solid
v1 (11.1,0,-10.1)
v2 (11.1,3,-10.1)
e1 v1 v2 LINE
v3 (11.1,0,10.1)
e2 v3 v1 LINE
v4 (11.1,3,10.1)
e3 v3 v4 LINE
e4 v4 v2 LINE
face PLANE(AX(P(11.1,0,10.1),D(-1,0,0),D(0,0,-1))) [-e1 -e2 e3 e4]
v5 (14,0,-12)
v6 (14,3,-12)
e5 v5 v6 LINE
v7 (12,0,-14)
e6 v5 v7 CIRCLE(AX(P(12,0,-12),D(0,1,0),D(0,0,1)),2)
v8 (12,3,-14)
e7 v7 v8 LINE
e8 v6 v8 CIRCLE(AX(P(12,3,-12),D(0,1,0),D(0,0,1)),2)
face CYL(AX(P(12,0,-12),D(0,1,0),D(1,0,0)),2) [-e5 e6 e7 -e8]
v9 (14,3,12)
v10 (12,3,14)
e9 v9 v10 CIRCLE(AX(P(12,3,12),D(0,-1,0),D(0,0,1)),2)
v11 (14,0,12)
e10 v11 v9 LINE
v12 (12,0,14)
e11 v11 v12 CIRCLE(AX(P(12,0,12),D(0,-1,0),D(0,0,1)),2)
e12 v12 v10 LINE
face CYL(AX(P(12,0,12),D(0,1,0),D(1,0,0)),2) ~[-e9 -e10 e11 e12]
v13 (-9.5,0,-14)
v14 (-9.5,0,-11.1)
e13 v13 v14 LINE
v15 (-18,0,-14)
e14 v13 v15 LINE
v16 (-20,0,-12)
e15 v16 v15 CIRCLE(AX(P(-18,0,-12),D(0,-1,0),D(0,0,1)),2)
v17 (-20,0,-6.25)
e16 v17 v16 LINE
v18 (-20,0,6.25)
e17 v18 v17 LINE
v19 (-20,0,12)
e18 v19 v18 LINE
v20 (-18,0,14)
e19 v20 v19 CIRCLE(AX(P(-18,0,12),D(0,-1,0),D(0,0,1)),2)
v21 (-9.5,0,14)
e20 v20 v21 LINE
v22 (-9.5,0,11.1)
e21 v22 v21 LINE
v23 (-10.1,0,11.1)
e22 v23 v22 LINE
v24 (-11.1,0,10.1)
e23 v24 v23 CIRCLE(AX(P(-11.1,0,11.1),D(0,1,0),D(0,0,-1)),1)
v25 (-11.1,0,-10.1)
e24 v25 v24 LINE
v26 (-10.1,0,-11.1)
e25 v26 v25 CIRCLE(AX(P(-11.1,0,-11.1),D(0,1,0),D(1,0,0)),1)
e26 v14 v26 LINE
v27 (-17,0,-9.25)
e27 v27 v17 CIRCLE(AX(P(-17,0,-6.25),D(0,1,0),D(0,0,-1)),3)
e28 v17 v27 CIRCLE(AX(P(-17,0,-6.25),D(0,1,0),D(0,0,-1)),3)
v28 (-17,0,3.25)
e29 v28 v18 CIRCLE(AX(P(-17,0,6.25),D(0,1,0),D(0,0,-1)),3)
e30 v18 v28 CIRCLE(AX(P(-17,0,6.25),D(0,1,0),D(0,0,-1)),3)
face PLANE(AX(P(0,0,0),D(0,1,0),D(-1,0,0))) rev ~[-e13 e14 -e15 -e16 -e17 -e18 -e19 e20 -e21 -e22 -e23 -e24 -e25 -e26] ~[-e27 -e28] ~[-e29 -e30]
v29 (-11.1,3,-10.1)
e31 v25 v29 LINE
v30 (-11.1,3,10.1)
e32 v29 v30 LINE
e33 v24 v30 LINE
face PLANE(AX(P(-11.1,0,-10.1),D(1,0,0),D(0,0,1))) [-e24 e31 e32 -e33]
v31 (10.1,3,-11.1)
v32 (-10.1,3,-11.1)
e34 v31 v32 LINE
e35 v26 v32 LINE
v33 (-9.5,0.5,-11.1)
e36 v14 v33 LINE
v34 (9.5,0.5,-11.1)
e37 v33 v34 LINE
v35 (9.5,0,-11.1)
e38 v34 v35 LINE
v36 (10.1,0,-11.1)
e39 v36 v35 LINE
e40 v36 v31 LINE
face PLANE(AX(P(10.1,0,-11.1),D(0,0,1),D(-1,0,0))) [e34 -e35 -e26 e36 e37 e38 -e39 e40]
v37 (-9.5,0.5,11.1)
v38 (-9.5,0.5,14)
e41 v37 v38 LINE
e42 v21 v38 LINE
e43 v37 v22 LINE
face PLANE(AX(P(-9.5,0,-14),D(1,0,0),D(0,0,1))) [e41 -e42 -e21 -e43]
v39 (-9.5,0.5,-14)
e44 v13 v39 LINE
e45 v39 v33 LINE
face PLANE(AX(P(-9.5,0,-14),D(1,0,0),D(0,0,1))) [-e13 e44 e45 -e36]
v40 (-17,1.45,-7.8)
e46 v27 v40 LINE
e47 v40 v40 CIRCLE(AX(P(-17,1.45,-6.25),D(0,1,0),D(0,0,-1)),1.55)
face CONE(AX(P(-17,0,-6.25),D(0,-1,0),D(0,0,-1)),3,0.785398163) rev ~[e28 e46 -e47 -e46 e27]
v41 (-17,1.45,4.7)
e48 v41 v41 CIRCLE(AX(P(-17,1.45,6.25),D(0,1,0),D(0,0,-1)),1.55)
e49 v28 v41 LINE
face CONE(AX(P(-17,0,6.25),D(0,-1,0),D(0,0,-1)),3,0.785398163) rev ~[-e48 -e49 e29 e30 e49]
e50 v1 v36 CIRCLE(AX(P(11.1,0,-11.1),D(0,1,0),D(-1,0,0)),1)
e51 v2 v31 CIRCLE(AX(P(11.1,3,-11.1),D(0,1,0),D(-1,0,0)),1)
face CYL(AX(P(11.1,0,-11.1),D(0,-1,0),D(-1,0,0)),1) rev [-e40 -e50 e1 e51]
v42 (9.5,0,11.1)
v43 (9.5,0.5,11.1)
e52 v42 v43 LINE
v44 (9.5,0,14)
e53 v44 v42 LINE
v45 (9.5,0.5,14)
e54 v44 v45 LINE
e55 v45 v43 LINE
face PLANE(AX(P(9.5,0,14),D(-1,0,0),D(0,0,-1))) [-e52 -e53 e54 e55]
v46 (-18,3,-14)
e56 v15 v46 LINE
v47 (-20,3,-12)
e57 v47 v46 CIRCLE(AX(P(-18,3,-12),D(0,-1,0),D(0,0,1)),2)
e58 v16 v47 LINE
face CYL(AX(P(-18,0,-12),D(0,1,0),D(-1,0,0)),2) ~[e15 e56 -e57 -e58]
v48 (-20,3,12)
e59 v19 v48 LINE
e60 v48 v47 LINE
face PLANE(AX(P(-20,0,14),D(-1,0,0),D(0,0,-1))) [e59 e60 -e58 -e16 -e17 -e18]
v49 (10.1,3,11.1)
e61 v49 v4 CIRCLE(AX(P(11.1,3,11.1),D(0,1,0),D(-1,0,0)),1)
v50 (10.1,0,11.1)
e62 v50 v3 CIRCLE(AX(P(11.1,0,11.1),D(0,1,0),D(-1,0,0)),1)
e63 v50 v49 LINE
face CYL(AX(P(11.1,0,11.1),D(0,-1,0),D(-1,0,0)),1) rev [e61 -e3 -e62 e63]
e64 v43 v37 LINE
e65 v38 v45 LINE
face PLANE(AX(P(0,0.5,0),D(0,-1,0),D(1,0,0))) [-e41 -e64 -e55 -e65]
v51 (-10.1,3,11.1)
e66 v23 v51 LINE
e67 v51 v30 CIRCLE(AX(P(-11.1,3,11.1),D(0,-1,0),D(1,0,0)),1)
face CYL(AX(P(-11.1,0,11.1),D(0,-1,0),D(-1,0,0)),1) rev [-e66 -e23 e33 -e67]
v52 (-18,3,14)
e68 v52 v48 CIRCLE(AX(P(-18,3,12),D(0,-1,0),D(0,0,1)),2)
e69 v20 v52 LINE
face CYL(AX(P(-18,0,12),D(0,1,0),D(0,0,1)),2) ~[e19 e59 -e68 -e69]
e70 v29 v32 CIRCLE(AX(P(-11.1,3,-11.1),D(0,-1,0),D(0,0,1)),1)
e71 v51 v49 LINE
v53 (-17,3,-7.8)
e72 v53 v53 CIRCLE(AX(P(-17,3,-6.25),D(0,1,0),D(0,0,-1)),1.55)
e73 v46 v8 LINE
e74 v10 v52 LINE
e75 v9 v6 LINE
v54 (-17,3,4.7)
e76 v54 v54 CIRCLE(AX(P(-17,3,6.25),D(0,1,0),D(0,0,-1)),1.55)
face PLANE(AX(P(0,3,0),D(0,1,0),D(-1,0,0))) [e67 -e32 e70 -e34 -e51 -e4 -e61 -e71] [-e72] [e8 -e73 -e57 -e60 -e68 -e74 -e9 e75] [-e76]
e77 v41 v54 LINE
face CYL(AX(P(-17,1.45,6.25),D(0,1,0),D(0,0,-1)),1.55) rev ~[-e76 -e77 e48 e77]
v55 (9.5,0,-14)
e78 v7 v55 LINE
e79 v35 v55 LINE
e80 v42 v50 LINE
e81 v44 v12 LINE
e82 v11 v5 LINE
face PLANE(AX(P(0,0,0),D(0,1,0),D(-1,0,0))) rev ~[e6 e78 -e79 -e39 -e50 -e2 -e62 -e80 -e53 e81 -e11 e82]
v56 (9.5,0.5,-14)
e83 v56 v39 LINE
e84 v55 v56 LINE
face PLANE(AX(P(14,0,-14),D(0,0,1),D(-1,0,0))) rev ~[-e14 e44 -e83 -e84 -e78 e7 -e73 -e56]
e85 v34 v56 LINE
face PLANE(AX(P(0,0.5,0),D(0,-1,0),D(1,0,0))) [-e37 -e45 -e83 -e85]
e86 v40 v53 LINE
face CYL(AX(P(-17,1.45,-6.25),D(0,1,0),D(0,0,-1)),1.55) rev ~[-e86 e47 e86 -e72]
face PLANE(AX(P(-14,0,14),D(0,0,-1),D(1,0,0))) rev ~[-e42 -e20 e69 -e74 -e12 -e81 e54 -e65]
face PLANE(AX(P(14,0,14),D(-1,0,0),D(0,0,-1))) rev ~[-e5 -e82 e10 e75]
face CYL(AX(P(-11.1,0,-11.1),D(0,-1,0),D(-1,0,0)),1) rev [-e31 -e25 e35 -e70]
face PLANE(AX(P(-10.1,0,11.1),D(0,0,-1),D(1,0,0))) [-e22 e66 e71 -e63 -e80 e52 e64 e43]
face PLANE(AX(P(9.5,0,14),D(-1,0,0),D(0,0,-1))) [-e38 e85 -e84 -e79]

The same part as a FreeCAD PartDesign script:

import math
import FreeCAD as App
import Part
import Sketcher

V = App.Vector


def edges_at(feature, points):
    """Names of the edges that pass closest to the given points."""
    edges = feature.Shape.Edges
    near = lambda p: min(range(len(edges)), key=lambda i: edges[i].distToShape(Part.Vertex(*p))[0])
    return sorted({f"Edge{near(p) + 1}" for p in points})

doc = App.newDocument("Part")
body = doc.addObject("PartDesign::Body", "Body")

sketch1 = doc.addObject("Sketcher::SketchObject", "Sketch")
body.addObject(sketch1)
sketch1.AttachmentSupport = (doc.XZ_Plane, [""])
sketch1.MapMode = "FlatFace"
sketch1.addGeometry([
    Part.LineSegment(V(14, 14, 0), V(14, -14, 0)),
    Part.LineSegment(V(14, -14, 0), V(-20, -14, 0)),
    Part.LineSegment(V(-20, -14, 0), V(-20, 14, 0)),
    Part.LineSegment(V(-20, 14, 0), V(14, 14, 0)),
    Part.LineSegment(V(-10.1, -11.1, 0), V(10.1, -11.1, 0)),
    Part.ArcOfCircle(Part.Circle(V(11.1, -11.1, 0), V(0, 0, 1), 1), math.radians(180), math.radians(450)),
    Part.LineSegment(V(11.1, -10.1, 0), V(11.1, 10.1, 0)),
    Part.ArcOfCircle(Part.Circle(V(11.1, 11.1, 0), V(0, 0, 1), 1), math.radians(-90), math.radians(180)),
    Part.LineSegment(V(10.1, 11.1, 0), V(-10.1, 11.1, 0)),
    Part.ArcOfCircle(Part.Circle(V(-11.1, 11.1, 0), V(0, 0, 1), 1), math.radians(0), math.radians(270)),
    Part.LineSegment(V(-11.1, 10.1, 0), V(-11.1, -10.1, 0)),
    Part.ArcOfCircle(Part.Circle(V(-11.1, -11.1, 0), V(0, 0, 1), 1), math.radians(90), math.radians(360)),
], False)
sketch1.addConstraint([
    Sketcher.Constraint("Coincident", 0, 2, 1, 1),
    Sketcher.Constraint("Coincident", 1, 2, 2, 1),
    Sketcher.Constraint("Coincident", 2, 2, 3, 1),
    Sketcher.Constraint("Coincident", 3, 2, 0, 1),
    Sketcher.Constraint("Coincident", 4, 2, 5, 1),
    Sketcher.Constraint("Coincident", 5, 2, 6, 1),
    Sketcher.Constraint("Coincident", 6, 2, 7, 1),
    Sketcher.Constraint("Coincident", 7, 2, 8, 1),
    Sketcher.Constraint("Coincident", 8, 2, 9, 1),
    Sketcher.Constraint("Coincident", 9, 2, 10, 1),
    Sketcher.Constraint("Coincident", 10, 2, 11, 1),
    Sketcher.Constraint("Coincident", 11, 2, 4, 1),
    Sketcher.Constraint("Vertical", 0),
    Sketcher.Constraint("Horizontal", 1),
    Sketcher.Constraint("Vertical", 2),
    Sketcher.Constraint("Horizontal", 3),
    Sketcher.Constraint("Horizontal", 4),
    Sketcher.Constraint("Vertical", 6),
    Sketcher.Constraint("Horizontal", 8),
    Sketcher.Constraint("Vertical", 10),
    Sketcher.Constraint("Equal", 5, 7),
    Sketcher.Constraint("Equal", 7, 9),
    Sketcher.Constraint("Equal", 9, 11),
    Sketcher.Constraint("Symmetric", 5, 3, 9, 3, -1, 1),
    Sketcher.Constraint("Symmetric", 7, 3, 11, 3, -1, 1),
    Sketcher.Constraint("Symmetric", 7, 3, 9, 3, -2),
    Sketcher.Constraint("Horizontal", 11, 3, 4, 2),
    Sketcher.Constraint("Horizontal", 9, 3, 7, 2),
    Sketcher.Constraint("Vertical", 7, 3, 5, 2),
    Sketcher.Constraint("Vertical", 11, 3, 9, 2),
    Sketcher.Constraint("Equal", 8, 6),
    Sketcher.Constraint("Radius", 5, 1.0),
    Sketcher.Constraint("DistanceY", 0, 2, 0, 1, 28.0),
    Sketcher.Constraint("DistanceY", 5, 3, 7, 3, 22.2),
    Sketcher.Constraint("DistanceX", 1, 2, 1, 1, 34.0),
    Sketcher.Constraint("DistanceX", -1, 1, 0, 2, 14.0),
    Sketcher.Constraint("DistanceY", 0, 2, -1, 1, 14.0),
])
pad1 = doc.addObject("PartDesign::Pad", "Pad")
body.addObject(pad1)
pad1.Profile = sketch1
pad1.Length = 3
pad1.Reversed = True

sketch2 = doc.addObject("Sketcher::SketchObject", "Sketch001")
body.addObject(sketch2)
sketch2.AttachmentSupport = (doc.XZ_Plane, [""])
sketch2.MapMode = "FlatFace"
sketch2.addGeometry([
    Part.Circle(V(-17, 6.25, 0), V(0, 0, 1), 1.55),
    Part.Circle(V(-17, -6.25, 0), V(0, 0, 1), 1.55),
], False)
sketch2.addConstraint([
    Sketcher.Constraint("Equal", 0, 1),
    Sketcher.Constraint("Symmetric", 0, 3, 1, 3, -1),
    Sketcher.Constraint("Diameter", 0, 3.1),
    Sketcher.Constraint("DistanceX", 0, 3, -1, 1, 17.0),
    Sketcher.Constraint("DistanceY", 1, 3, 0, 3, 12.5),
])
doc.recompute()
hole = doc.addObject("PartDesign::Hole", "Hole")
body.addObject(hole)
hole.Profile = sketch2
hole.ThreadType = "None"
hole.Diameter = 3.1
hole.DepthType = "ThroughAll"
hole.HoleCutType = "Countersink"
hole.HoleCutDiameter = 6
hole.HoleCutCountersinkAngle = 90
doc.recompute()

fillet = doc.addObject("PartDesign::Fillet", "Fillet")
body.addObject(fillet)
fillet.Base = (hole, edges_at(hole, [(14, 1.5, -14), (14, 1.5, 14)]))
fillet.Radius = 2
doc.recompute()

fillet2 = doc.addObject("PartDesign::Fillet", "Fillet001")
body.addObject(fillet2)
fillet2.Base = (fillet, edges_at(fillet, [(-20, 1.5, -14), (-20, 1.5, 14)]))
fillet2.Radius = 2

sketch3 = doc.addObject("Sketcher::SketchObject", "Sketch002")
body.addObject(sketch3)
sketch3.AttachmentSupport = (doc.XZ_Plane, [""])
sketch3.MapMode = "FlatFace"
sketch3.addGeometry([
    Part.LineSegment(V(-9.5, -14, 0), V(9.5, -14, 0)),
    Part.LineSegment(V(9.5, -14, 0), V(9.5, 14, 0)),
    Part.LineSegment(V(9.5, 14, 0), V(-9.5, 14, 0)),
    Part.LineSegment(V(-9.5, 14, 0), V(-9.5, -14, 0)),
], False)
sketch3.addConstraint([
    Sketcher.Constraint("Coincident", 0, 2, 1, 1),
    Sketcher.Constraint("Coincident", 1, 2, 2, 1),
    Sketcher.Constraint("Coincident", 2, 2, 3, 1),
    Sketcher.Constraint("Coincident", 3, 2, 0, 1),
    Sketcher.Constraint("Horizontal", 0),
    Sketcher.Constraint("Vertical", 1),
    Sketcher.Constraint("Horizontal", 2),
    Sketcher.Constraint("Vertical", 3),
    Sketcher.Constraint("Symmetric", 0, 2, 2, 2, -1, 1),
    Sketcher.Constraint("DistanceX", 0, 1, 0, 2, 19.0),
    Sketcher.Constraint("DistanceY", 1, 1, 1, 2, 28.0),
])
pocket1 = doc.addObject("PartDesign::Pocket", "Pocket")
body.addObject(pocket1)
pocket1.Profile = sketch3
pocket1.Length = 0.5

doc.recompute()
